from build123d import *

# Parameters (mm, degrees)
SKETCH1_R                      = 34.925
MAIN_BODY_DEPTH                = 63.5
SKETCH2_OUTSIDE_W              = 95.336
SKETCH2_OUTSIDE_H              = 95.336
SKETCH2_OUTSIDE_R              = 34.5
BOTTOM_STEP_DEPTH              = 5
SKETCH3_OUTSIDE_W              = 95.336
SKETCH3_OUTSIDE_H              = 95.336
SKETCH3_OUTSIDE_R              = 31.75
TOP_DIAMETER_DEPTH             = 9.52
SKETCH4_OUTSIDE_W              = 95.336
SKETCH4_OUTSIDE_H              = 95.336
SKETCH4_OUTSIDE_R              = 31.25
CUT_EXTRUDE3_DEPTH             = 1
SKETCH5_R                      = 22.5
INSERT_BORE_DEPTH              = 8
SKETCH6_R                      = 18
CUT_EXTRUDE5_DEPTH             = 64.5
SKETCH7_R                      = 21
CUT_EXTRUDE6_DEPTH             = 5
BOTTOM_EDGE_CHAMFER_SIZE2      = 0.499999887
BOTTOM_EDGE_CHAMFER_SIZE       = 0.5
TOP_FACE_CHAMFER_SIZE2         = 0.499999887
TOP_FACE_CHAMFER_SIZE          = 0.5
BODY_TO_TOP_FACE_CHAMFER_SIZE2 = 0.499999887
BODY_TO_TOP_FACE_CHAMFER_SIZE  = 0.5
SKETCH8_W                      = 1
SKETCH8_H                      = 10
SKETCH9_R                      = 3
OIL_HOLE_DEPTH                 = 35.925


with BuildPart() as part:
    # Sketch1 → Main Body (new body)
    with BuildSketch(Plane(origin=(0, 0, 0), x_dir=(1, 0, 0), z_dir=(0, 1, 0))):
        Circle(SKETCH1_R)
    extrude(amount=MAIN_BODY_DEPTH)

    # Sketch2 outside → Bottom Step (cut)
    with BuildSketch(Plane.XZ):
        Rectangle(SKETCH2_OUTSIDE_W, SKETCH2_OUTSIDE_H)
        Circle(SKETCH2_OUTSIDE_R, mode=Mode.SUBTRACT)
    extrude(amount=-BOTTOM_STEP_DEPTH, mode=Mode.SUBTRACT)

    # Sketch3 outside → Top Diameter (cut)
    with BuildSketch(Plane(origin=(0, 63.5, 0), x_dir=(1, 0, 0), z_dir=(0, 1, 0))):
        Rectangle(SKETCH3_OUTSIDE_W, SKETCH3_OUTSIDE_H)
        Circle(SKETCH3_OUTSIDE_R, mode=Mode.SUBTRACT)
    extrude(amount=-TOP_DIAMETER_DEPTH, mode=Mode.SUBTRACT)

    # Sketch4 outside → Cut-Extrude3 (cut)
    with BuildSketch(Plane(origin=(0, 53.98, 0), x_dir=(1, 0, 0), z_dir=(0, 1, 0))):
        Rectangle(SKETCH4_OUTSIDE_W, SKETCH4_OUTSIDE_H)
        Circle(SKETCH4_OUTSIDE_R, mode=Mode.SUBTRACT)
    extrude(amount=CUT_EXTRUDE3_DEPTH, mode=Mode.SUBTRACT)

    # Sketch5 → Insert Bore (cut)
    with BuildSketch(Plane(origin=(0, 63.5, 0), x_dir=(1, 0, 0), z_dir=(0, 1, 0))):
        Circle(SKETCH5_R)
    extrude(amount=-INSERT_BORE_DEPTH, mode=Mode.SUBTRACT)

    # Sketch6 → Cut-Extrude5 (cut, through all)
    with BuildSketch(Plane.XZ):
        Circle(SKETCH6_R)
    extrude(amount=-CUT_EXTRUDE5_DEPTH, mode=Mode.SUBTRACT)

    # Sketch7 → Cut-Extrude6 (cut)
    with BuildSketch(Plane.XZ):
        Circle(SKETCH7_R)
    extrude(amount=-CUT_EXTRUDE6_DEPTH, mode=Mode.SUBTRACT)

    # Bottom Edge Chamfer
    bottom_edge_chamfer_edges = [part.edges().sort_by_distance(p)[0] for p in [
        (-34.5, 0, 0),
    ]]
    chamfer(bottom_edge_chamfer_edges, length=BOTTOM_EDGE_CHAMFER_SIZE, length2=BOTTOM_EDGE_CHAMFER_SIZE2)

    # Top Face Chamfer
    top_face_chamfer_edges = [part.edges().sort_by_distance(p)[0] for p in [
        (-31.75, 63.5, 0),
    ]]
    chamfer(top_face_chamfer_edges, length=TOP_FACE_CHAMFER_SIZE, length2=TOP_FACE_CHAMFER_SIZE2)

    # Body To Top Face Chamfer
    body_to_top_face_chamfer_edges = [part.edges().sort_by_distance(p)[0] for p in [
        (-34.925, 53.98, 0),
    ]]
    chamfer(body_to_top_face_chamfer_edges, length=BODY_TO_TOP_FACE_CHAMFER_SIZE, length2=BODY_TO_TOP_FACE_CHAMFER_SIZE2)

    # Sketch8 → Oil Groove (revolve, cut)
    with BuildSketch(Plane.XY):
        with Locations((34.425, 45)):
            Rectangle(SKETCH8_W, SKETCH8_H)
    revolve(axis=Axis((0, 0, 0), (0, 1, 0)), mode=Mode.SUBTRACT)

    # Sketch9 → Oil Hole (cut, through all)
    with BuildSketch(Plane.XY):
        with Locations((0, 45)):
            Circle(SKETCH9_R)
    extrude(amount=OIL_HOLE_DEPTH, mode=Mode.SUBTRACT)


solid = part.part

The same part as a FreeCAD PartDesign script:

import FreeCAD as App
import Part
import Sketcher


def edges_at(feature, points):
    """Names of the edges that pass closest to the given points."""
    edges = feature.Shape.Edges
    near = lambda p: min(range(len(edges)), key=lambda i: edges[i].distToShape(Part.Vertex(*p))[0])
    return sorted({f"Edge{near(p) + 1}" for p in points})

doc = App.newDocument("Part")
body = doc.addObject("PartDesign::Body", "Body")

sketch1 = body.newObject("Sketcher::SketchObject", "Sketch")
sketch1.AttachmentSupport = (doc.getObject("XZ_Plane"), [""])
sketch1.MapMode = "FlatFace"
sketch1.addGeometry(Part.Circle(App.Vector(0, 0, 0), App.Vector(0, 0, 1), 35), False)
sketch1.addConstraint([
    Sketcher.Constraint("Coincident", 0, 3, -1, 1),
    Sketcher.Constraint("Diameter", 0, 69.85),
])
pad1 = body.newObject("PartDesign::Pad", "Pad")
pad1.Profile = sketch1
pad1.Length = 63.5
pad1.Reversed = True

sketch2 = body.newObject("Sketcher::SketchObject", "Sketch001")
sketch2.AttachmentSupport = (doc.getObject("XZ_Plane"), [""])
sketch2.MapMode = "FlatFace"
sketch2.addGeometry([
    Part.LineSegment(App.Vector(-48, 48, 0), App.Vector(-48, -48, 0)),
    Part.LineSegment(App.Vector(-48, -48, 0), App.Vector(48, -48, 0)),
    Part.LineSegment(App.Vector(48, -48, 0), App.Vector(48, 48, 0)),
    Part.LineSegment(App.Vector(48, 48, 0), App.Vector(-48, 48, 0)),
    Part.Circle(App.Vector(0, 0, 0), App.Vector(0, 0, 1), 34),
], False)
sketch2.addConstraint([
    Sketcher.Constraint("Coincident", 0, 2, 1, 1),
    Sketcher.Constraint("Coincident", 1, 2, 2, 1),
    Sketcher.Constraint("Coincident", 2, 2, 3, 1),
    Sketcher.Constraint("Coincident", 3, 2, 0, 1),
    Sketcher.Constraint("Vertical", 0),
    Sketcher.Constraint("Horizontal", 1),
    Sketcher.Constraint("Vertical", 2),
    Sketcher.Constraint("Horizontal", 3),
    Sketcher.Constraint("Coincident", 4, 3, -1, 1),
    Sketcher.Constraint("Symmetric", 0, 2, 2, 2, -1, 1),
    Sketcher.Constraint("Equal", 3, 0),
    Sketcher.Constraint("Diameter", 4, 69.0),
    Sketcher.Constraint("DistanceX", 1, 1, 1, 2, 95.336),
])
pocket1 = body.newObject("PartDesign::Pocket", "Pocket")
pocket1.Profile = sketch2
pocket1.Length = 5

sketch3 = body.newObject("Sketcher::SketchObject", "Sketch002")
sketch3.AttachmentSupport = (doc.getObject("XZ_Plane"), [""])
sketch3.MapMode = "FlatFace"
sketch3.AttachmentOffset = App.Placement(App.Vector(0, 0, -63.5), App.Rotation())
sketch3.addGeometry([
    Part.LineSegment(App.Vector(-48, -48, 0), App.Vector(-48, 48, 0)),
    Part.LineSegment(App.Vector(-48, 48, 0), App.Vector(48, 48, 0)),
    Part.LineSegment(App.Vector(48, 48, 0), App.Vector(48, -48, 0)),
    Part.LineSegment(App.Vector(48, -48, 0), App.Vector(-48, -48, 0)),
    Part.Circle(App.Vector(0, 0, 0), App.Vector(0, 0, 1), 32),
], False)
sketch3.addConstraint([
    Sketcher.Constraint("Coincident", 0, 2, 1, 1),
    Sketcher.Constraint("Coincident", 1, 2, 2, 1),
    Sketcher.Constraint("Coincident", 2, 2, 3, 1),
    Sketcher.Constraint("Coincident", 3, 2, 0, 1),
    Sketcher.Constraint("Vertical", 0),
    Sketcher.Constraint("Horizontal", 1),
    Sketcher.Constraint("Vertical", 2),
    Sketcher.Constraint("Horizontal", 3),
    Sketcher.Constraint("Coincident", 4, 3, -1, 1),
    Sketcher.Constraint("Symmetric", 0, 2, 2, 2, -1, 1),
    Sketcher.Constraint("Equal", 3, 0),
    Sketcher.Constraint("Diameter", 4, 63.5),
    Sketcher.Constraint("DistanceX", 1, 1, 1, 2, 95.336),
])
pocket2 = body.newObject("PartDesign::Pocket", "Pocket001")
pocket2.Profile = sketch3
pocket2.Length = 9.52
pocket2.Reversed = True

sketch4 = body.newObject("Sketcher::SketchObject", "Sketch003")
sketch4.AttachmentSupport = (doc.getObject("XZ_Plane"), [""])
sketch4.MapMode = "FlatFace"
sketch4.AttachmentOffset = App.Placement(App.Vector(0, 0, -53.98), App.Rotation())
sketch4.addGeometry([
    Part.LineSegment(App.Vector(-48, -48, 0), App.Vector(-48, 48, 0)),
    Part.LineSegment(App.Vector(-48, 48, 0), App.Vector(48, 48, 0)),
    Part.LineSegment(App.Vector(48, 48, 0), App.Vector(48, -48, 0)),
    Part.LineSegment(App.Vector(48, -48, 0), App.Vector(-48, -48, 0)),
    Part.Circle(App.Vector(0, 0, 0), App.Vector(0, 0, 1), 31),
], False)
sketch4.addConstraint([
    Sketcher.Constraint("Coincident", 0, 2, 1, 1),
    Sketcher.Constraint("Coincident", 1, 2, 2, 1),
    Sketcher.Constraint("Coincident", 2, 2, 3, 1),
    Sketcher.Constraint("Coincident", 3, 2, 0, 1),
    Sketcher.Constraint("Vertical", 0),
    Sketcher.Constraint("Horizontal", 1),
    Sketcher.Constraint("Vertical", 2),
    Sketcher.Constraint("Horizontal", 3),
    Sketcher.Constraint("Coincident", 4, 3, -1, 1),
    Sketcher.Constraint("Symmetric", 0, 2, 2, 2, -1, 1),
    Sketcher.Constraint("Equal", 3, 0),
    Sketcher.Constraint("Diameter", 4, 62.5),
    Sketcher.Constraint("DistanceX", 1, 1, 1, 2, 95.336),
])
pocket3 = body.newObject("PartDesign::Pocket", "Pocket002")
pocket3.Profile = sketch4
pocket3.Length = 1

sketch5 = body.newObject("Sketcher::SketchObject", "Sketch004")
sketch5.AttachmentSupport = (doc.getObject("XZ_Plane"), [""])
sketch5.MapMode = "FlatFace"
sketch5.AttachmentOffset = App.Placement(App.Vector(0, 0, -63.5), App.Rotation())
sketch5.addGeometry(Part.Circle(App.Vector(0, 0, 0), App.Vector(0, 0, 1), 22), False)
sketch5.addConstraint([
    Sketcher.Constraint("Coincident", 0, 3, -1, 1),
    Sketcher.Constraint("Diameter", 0, 45.0),
])
pocket4 = body.newObject("PartDesign::Pocket", "Pocket003")
pocket4.Profile = sketch5
pocket4.Length = 8
pocket4.Reversed = True

sketch6 = body.newObject("Sketcher::SketchObject", "Sketch005")
sketch6.AttachmentSupport = (doc.getObject("XZ_Plane"), [""])
sketch6.MapMode = "FlatFace"
sketch6.addGeometry(Part.Circle(App.Vector(0, 0, 0), App.Vector(0, 0, 1), 18), False)
sketch6.addConstraint([
    Sketcher.Constraint("Coincident", 0, 3, -1, 1),
    Sketcher.Constraint("Diameter", 0, 36.0),
])
pocket5 = body.newObject("PartDesign::Pocket", "Pocket004")
pocket5.Profile = sketch6
pocket5.Type = "ThroughAll"

sketch7 = body.newObject("Sketcher::SketchObject", "Sketch006")
sketch7.AttachmentSupport = (doc.getObject("XZ_Plane"), [""])
sketch7.MapMode = "FlatFace"
sketch7.addGeometry(Part.Circle(App.Vector(0, 0, 0), App.Vector(0, 0, 1), 21), False)
sketch7.addConstraint([
    Sketcher.Constraint("Coincident", 0, 3, -1, 1),
    Sketcher.Constraint("Diameter", 0, 42.0),
])
pocket6 = body.newObject("PartDesign::Pocket", "Pocket005")
pocket6.Profile = sketch7
pocket6.Length = 5
doc.recompute()

chamfer = body.newObject("PartDesign::Chamfer", "Chamfer")
chamfer.Base = (pocket6, edges_at(pocket6, [(-34.5, 0, 0)]))
chamfer.ChamferType = "Two distances"
chamfer.Size = 0.5
chamfer.Size2 = 0.5
doc.recompute()

chamfer2 = body.newObject("PartDesign::Chamfer", "Chamfer001")
chamfer2.Base = (chamfer, edges_at(chamfer, [(-31.75, 63.5, 0)]))
chamfer2.ChamferType = "Two distances"
chamfer2.Size = 0.5
chamfer2.Size2 = 0.5
doc.recompute()

chamfer3 = body.newObject("PartDesign::Chamfer", "Chamfer002")
chamfer3.Base = (chamfer2, edges_at(chamfer2, [(-34.925, 53.98, 0)]))
chamfer3.ChamferType = "Two distances"
chamfer3.Size = 0.5
chamfer3.Size2 = 0.5

sketch8 = body.newObject("Sketcher::SketchObject", "Sketch007")
sketch8.AttachmentSupport = (doc.getObject("XY_Plane"), [""])
sketch8.MapMode = "FlatFace"
sketch8.addGeometry([
    Part.LineSegment(App.Vector(33.9, 50, 0), App.Vector(33.9, 40, 0)),
    Part.LineSegment(App.Vector(33.9, 40, 0), App.Vector(34.9, 40, 0)),
    Part.LineSegment(App.Vector(34.9, 40, 0), App.Vector(34.9, 50, 0)),
    Part.LineSegment(App.Vector(34.9, 50, 0), App.Vector(33.9, 50, 0)),
], False)
sketch8.addConstraint([
    Sketcher.Constraint("Coincident", 0, 2, 1, 1),
    Sketcher.Constraint("Coincident", 1, 2, 2, 1),
    Sketcher.Constraint("Coincident", 2, 2, 3, 1),
    Sketcher.Constraint("Coincident", 3, 2, 0, 1),
    Sketcher.Constraint("Vertical", 0),
    Sketcher.Constraint("Horizontal", 1),
    Sketcher.Constraint("Vertical", 2),
    Sketcher.Constraint("Horizontal", 3),
    Sketcher.Constraint("DistanceX", 1, 1, 1, 2, 1.0),
    Sketcher.Constraint("DistanceY", 0, 2, 0, 1, 10.0),
    Sketcher.Constraint("DistanceY", -1, 1, 0, 2, 40.0),
    Sketcher.Constraint("DistanceX", -1, 1, 0, 2, 33.925),
])
groove = body.newObject("PartDesign::Groove", "Groove")
groove.Profile = sketch8
groove.ReferenceAxis = (sketch8, ["V_Axis"])
groove.Angle = 360

sketch9 = body.newObject("Sketcher::SketchObject", "Sketch008")
sketch9.AttachmentSupport = (doc.getObject("XY_Plane"), [""])
sketch9.MapMode = "FlatFace"
sketch9.addGeometry(Part.Circle(App.Vector(0, 45, 0), App.Vector(0, 0, 1), 3), False)
sketch9.addConstraint([
    Sketcher.Constraint("PointOnObject", 0, 3, -2),
    Sketcher.Constraint("Diameter", 0, 6.0),
    Sketcher.Constraint("DistanceY", -1, 1, 0, 3, 45.0),
])
pocket7 = body.newObject("PartDesign::Pocket", "Pocket006")
pocket7.Profile = sketch9
pocket7.Type = "ThroughAll"
pocket7.Reversed = True

doc.recompute()
